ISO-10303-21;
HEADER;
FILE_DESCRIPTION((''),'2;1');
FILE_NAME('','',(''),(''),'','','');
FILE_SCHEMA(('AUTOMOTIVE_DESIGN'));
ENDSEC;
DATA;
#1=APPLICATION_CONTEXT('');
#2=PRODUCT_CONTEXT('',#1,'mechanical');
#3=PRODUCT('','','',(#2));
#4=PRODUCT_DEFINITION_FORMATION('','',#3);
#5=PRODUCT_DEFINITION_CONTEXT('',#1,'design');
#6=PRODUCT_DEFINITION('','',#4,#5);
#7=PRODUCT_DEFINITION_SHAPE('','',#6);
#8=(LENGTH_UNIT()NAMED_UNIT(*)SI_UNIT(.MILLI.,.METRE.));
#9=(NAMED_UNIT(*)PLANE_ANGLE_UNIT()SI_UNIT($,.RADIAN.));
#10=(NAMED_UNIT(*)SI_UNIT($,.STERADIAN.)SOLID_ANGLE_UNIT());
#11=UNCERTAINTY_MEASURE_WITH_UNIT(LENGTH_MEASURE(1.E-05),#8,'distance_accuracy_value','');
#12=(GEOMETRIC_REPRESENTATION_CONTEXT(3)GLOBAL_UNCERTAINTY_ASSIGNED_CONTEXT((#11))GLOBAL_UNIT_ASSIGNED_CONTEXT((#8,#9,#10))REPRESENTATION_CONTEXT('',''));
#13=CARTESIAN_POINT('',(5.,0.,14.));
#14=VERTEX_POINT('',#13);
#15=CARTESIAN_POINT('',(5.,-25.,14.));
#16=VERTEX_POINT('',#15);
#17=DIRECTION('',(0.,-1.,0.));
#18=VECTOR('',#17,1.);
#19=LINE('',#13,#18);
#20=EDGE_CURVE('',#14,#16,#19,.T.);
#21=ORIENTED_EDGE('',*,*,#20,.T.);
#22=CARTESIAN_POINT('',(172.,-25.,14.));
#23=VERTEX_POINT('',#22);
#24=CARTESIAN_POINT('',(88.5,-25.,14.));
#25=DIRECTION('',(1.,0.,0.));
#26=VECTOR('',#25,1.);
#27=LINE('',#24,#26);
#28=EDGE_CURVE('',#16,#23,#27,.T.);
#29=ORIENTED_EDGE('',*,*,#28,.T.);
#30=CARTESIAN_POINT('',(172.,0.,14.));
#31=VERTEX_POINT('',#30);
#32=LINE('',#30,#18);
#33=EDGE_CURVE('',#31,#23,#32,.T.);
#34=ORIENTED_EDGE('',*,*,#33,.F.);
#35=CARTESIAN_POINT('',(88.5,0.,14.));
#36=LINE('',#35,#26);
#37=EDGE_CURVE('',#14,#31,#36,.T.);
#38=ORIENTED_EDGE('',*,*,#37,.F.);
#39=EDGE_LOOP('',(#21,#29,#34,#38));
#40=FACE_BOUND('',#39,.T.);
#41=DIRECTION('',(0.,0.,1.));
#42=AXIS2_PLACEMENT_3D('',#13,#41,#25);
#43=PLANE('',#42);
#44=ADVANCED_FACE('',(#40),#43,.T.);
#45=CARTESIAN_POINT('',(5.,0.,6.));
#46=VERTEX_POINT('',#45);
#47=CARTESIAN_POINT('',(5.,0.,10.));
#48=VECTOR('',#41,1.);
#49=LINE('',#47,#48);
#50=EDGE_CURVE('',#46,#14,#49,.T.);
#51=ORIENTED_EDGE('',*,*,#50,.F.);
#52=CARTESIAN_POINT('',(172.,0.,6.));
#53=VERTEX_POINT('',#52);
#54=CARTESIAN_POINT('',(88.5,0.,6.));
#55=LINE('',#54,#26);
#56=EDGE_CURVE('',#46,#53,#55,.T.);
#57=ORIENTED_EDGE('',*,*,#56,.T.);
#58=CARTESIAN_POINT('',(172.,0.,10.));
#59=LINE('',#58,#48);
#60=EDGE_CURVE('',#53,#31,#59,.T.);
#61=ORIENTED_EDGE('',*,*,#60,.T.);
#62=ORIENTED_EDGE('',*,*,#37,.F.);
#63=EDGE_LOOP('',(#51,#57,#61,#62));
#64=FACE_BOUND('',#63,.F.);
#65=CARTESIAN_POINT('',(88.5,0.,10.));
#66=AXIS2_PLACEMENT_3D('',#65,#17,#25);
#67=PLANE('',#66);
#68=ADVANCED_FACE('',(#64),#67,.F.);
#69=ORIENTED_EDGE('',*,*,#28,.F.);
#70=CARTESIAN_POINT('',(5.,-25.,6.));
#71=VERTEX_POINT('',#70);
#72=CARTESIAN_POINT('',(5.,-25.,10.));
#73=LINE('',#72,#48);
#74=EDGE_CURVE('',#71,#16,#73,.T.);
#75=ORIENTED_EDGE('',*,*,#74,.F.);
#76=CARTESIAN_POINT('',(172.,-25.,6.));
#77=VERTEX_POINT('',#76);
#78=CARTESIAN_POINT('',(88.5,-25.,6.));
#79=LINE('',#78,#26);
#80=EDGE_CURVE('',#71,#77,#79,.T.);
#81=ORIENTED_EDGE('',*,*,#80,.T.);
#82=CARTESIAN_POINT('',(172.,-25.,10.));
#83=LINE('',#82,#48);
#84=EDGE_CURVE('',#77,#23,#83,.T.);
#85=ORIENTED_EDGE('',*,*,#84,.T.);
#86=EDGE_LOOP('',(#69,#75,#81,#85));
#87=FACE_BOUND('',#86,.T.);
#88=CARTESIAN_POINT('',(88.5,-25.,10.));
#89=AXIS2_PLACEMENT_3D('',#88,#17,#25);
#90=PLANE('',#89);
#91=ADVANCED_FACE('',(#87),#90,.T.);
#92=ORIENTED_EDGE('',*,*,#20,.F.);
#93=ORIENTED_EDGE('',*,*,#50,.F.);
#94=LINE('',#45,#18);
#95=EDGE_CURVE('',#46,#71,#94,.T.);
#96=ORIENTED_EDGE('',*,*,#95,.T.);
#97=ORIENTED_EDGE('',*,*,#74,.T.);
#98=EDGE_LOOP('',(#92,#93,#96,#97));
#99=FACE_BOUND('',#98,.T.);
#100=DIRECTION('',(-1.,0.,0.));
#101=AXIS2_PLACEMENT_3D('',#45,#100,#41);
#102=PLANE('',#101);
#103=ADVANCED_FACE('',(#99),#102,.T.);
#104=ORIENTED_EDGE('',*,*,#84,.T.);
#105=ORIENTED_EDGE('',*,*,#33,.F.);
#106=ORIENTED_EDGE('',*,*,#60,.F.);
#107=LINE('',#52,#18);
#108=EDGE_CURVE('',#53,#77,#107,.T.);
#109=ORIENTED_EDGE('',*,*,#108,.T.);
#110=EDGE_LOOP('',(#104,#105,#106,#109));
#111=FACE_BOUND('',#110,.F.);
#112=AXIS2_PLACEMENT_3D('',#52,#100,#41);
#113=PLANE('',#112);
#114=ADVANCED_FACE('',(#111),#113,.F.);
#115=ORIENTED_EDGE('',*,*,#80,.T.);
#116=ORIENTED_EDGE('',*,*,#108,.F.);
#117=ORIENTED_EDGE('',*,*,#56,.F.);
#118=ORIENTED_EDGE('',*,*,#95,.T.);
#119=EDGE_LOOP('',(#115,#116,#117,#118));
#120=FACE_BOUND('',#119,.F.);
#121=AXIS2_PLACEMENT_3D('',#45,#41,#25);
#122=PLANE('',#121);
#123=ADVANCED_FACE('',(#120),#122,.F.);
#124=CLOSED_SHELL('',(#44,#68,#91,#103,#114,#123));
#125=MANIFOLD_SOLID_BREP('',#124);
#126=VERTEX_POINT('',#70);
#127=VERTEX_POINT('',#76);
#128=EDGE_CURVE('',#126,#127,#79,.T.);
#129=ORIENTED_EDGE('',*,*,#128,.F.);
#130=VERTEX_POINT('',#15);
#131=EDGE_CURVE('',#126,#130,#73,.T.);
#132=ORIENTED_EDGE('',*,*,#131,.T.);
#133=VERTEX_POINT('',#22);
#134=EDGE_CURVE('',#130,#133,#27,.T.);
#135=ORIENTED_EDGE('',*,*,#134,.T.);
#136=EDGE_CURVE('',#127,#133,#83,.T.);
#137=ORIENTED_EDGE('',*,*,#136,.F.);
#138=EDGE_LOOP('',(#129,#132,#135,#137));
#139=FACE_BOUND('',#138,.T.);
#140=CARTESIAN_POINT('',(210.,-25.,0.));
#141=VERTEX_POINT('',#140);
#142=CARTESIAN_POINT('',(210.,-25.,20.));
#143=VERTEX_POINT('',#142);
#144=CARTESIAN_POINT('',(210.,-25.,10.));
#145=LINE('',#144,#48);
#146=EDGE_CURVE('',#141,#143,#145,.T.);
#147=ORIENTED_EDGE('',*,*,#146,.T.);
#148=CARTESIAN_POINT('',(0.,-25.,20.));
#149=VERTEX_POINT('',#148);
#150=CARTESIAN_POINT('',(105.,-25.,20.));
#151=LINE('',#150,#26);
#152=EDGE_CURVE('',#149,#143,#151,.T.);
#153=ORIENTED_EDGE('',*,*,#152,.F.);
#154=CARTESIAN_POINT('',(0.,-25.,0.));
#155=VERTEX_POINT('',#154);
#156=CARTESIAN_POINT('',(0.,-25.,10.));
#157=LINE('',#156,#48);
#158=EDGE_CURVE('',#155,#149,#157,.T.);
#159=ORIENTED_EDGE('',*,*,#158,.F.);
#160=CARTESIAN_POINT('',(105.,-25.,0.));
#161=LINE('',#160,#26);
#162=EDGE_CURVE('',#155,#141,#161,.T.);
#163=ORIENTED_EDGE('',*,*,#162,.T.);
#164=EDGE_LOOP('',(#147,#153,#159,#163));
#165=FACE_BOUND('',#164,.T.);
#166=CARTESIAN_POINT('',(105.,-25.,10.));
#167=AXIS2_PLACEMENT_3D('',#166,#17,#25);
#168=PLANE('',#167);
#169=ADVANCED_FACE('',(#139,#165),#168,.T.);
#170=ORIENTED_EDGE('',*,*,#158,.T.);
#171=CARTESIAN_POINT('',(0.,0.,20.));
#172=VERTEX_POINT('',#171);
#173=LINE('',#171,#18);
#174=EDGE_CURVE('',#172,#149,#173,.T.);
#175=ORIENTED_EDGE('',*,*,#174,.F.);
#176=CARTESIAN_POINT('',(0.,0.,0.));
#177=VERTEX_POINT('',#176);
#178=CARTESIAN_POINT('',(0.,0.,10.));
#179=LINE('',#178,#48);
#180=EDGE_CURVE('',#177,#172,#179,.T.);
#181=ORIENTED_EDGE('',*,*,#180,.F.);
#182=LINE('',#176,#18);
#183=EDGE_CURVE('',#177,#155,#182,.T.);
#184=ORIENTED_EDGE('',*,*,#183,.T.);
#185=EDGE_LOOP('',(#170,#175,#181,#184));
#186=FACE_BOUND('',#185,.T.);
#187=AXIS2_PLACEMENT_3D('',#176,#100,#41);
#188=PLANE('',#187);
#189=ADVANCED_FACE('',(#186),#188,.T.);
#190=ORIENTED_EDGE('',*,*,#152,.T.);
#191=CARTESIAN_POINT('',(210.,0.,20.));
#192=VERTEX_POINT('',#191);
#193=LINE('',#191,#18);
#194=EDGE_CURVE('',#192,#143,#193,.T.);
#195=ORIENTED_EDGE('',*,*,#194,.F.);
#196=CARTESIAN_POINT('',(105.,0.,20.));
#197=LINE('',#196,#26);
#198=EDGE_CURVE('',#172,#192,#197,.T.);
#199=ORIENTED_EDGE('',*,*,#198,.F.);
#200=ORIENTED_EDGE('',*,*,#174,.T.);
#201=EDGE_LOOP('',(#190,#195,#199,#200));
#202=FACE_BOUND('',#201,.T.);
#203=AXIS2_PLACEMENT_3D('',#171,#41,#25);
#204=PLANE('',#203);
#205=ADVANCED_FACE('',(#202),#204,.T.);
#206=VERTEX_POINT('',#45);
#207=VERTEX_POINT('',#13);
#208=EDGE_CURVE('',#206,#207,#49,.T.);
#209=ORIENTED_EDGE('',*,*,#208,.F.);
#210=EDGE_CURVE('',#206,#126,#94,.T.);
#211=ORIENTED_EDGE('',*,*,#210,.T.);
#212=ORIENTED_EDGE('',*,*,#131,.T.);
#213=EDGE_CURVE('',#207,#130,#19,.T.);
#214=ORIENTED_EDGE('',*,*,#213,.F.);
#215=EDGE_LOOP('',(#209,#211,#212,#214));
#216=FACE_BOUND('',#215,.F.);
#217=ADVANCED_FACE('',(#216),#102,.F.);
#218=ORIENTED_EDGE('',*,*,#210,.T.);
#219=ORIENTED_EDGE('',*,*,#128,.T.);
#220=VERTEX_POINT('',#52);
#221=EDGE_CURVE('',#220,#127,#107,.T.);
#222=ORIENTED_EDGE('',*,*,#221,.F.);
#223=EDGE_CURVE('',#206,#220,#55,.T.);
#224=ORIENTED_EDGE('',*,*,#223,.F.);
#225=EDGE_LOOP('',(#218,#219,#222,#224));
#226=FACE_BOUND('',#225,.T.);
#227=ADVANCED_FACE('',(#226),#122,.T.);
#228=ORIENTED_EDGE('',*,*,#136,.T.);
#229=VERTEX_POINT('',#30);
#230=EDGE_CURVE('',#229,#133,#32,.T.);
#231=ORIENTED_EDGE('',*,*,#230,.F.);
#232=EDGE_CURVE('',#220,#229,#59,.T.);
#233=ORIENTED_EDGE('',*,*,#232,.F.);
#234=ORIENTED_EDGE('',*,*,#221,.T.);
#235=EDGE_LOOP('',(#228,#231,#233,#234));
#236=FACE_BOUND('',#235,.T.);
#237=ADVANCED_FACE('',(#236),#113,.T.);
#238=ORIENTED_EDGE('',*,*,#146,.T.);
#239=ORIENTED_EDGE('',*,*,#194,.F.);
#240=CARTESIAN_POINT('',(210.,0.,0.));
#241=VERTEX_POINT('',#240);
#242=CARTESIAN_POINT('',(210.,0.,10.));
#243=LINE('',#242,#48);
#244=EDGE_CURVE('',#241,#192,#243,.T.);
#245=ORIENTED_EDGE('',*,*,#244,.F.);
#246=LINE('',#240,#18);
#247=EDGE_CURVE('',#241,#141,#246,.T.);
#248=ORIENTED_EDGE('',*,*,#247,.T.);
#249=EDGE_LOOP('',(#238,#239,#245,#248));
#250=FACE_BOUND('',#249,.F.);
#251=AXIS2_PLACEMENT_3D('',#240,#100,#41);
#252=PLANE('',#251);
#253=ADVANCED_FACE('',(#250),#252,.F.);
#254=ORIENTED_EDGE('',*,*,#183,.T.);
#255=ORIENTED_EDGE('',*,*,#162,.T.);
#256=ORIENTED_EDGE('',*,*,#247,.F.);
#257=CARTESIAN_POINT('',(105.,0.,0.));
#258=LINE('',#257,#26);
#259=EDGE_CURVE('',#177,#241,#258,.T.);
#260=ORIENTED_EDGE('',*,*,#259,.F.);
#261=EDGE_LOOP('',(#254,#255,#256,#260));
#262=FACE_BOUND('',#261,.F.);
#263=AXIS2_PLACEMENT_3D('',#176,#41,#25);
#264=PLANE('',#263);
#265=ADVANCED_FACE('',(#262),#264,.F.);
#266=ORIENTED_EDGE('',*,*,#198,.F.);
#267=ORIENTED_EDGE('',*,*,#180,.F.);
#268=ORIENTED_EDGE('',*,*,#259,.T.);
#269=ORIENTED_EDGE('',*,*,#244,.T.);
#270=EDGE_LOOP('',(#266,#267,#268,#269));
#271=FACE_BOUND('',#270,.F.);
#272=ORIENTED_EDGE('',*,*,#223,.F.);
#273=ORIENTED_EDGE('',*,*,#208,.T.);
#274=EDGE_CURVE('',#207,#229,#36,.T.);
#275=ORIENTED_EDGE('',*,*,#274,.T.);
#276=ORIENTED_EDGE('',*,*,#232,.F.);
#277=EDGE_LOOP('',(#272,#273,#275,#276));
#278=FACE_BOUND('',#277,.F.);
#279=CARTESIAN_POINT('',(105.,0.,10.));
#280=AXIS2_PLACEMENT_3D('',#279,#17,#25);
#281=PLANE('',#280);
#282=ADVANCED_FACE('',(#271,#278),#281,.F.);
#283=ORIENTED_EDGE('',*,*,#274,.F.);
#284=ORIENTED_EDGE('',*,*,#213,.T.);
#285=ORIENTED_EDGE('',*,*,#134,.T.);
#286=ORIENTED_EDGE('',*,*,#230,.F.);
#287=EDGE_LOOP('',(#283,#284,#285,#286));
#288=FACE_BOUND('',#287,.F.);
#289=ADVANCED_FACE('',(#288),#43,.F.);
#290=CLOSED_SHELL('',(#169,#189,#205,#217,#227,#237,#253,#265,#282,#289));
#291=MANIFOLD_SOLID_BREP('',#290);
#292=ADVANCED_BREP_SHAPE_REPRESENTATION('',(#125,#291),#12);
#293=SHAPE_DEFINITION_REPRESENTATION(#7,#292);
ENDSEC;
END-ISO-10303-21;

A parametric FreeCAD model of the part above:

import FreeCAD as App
import Part
import Sketcher

V = App.Vector

doc = App.newDocument("Part")
body = doc.addObject("PartDesign::Body", "Body")

# Sketch on XZ plane
sketch1 = body.newObject("Sketcher::SketchObject", "Sketch")
sketch1.AttachmentSupport = (doc.getObject("XZ_Plane"), [""])
sketch1.MapMode = "FlatFace"
sketch1.addGeometry(Part.LineSegment(V(5, 14, 0), V(5, 6, 0)), False)
sketch1.addGeometry(Part.LineSegment(V(5, 6, 0), V(172, 6, 0)), False)
sketch1.addGeometry(Part.LineSegment(V(172, 6, 0), V(172, 14, 0)), False)
sketch1.addGeometry(Part.LineSegment(V(172, 14, 0), V(5, 14, 0)), False)
sketch1.addConstraint(Sketcher.Constraint("Coincident", 0, 2, 1, 1))
sketch1.addConstraint(Sketcher.Constraint("Coincident", 1, 2, 2, 1))
sketch1.addConstraint(Sketcher.Constraint("Coincident", 2, 2, 3, 1))
sketch1.addConstraint(Sketcher.Constraint("Coincident", 3, 2, 0, 1))
sketch1.addConstraint(Sketcher.Constraint("Vertical", 0))
sketch1.addConstraint(Sketcher.Constraint("Horizontal", 1))
sketch1.addConstraint(Sketcher.Constraint("Vertical", 2))
sketch1.addConstraint(Sketcher.Constraint("Horizontal", 3))
sketch1.addConstraint(Sketcher.Constraint("DistanceX", 1, 1, 1, 2, 167.0))
sketch1.addConstraint(Sketcher.Constraint("DistanceY", 0, 2, 0, 1, 8.0))
sketch1.addConstraint(Sketcher.Constraint("DistanceX", -1, 1, 0, 2, 5.0))
sketch1.addConstraint(Sketcher.Constraint("DistanceY", -1, 1, 0, 2, 6.0))
pad1 = body.newObject("PartDesign::Pad", "Pad")
pad1.Profile = sketch1
pad1.Length = 25
body2 = doc.addObject("PartDesign::Body", "Body001")

# Sketch on XZ plane
sketch2 = body2.newObject("Sketcher::SketchObject", "Sketch001")
sketch2.AttachmentSupport = (doc.getObject("XZ_Plane001"), [""])
sketch2.MapMode = "FlatFace"
sketch2.addGeometry(Part.LineSegment(V(0, 20, 0), V(0, 0, 0)), False)
sketch2.addGeometry(Part.LineSegment(V(0, 0, 0), V(210, 0, 0)), False)
sketch2.addGeometry(Part.LineSegment(V(210, 0, 0), V(210, 20, 0)), False)
sketch2.addGeometry(Part.LineSegment(V(210, 20, 0), V(0, 20, 0)), False)
sketch2.addGeometry(Part.LineSegment(V(172, 6, 0), V(5, 6, 0)), False)
sketch2.addGeometry(Part.LineSegment(V(5, 6, 0), V(5, 14, 0)), False)
sketch2.addGeometry(Part.LineSegment(V(5, 14, 0), V(172, 14, 0)), False)
sketch2.addGeometry(Part.LineSegment(V(172, 14, 0), V(172, 6, 0)), False)
sketch2.addConstraint(Sketcher.Constraint("Coincident", 0, 2, 1, 1))
sketch2.addConstraint(Sketcher.Constraint("Coincident", 1, 2, 2, 1))
sketch2.addConstraint(Sketcher.Constraint("Coincident", 2, 2, 3, 1))
sketch2.addConstraint(Sketcher.Constraint("Coincident", 3, 2, 0, 1))
sketch2.addConstraint(Sketcher.Constraint("Coincident", 4, 2, 5, 1))
sketch2.addConstraint(Sketcher.Constraint("Coincident", 5, 2, 6, 1))
sketch2.addConstraint(Sketcher.Constraint("Coincident", 6, 2, 7, 1))
sketch2.addConstraint(Sketcher.Constraint("Coincident", 7, 2, 4, 1))
sketch2.addConstraint(Sketcher.Constraint("Vertical", 0))
sketch2.addConstraint(Sketcher.Constraint("Horizontal", 1))
sketch2.addConstraint(Sketcher.Constraint("Vertical", 2))
sketch2.addConstraint(Sketcher.Constraint("Horizontal", 3))
sketch2.addConstraint(Sketcher.Constraint("Horizontal", 4))
sketch2.addConstraint(Sketcher.Constraint("Vertical", 5))
sketch2.addConstraint(Sketcher.Constraint("Horizontal", 6))
sketch2.addConstraint(Sketcher.Constraint("Vertical", 7))
sketch2.addConstraint(Sketcher.Constraint("Coincident", 0, 2, -1, 1))
sketch2.addConstraint(Sketcher.Constraint("DistanceX", 1, 1, 1, 2, 210.0))
sketch2.addConstraint(Sketcher.Constraint("DistanceX", 4, 2, 4, 1, 167.0))
sketch2.addConstraint(Sketcher.Constraint("DistanceY", 0, 2, 0, 1, 20.0))
sketch2.addConstraint(Sketcher.Constraint("DistanceY", 5, 1, 5, 2, 8.0))
sketch2.addConstraint(Sketcher.Constraint("DistanceX", -1, 1, 4, 2, 5.0))
sketch2.addConstraint(Sketcher.Constraint("DistanceY", -1, 1, 4, 2, 6.0))
pad2 = body2.newObject("PartDesign::Pad", "Pad001")
pad2.Profile = sketch2
pad2.Length = 25

doc.recompute()
